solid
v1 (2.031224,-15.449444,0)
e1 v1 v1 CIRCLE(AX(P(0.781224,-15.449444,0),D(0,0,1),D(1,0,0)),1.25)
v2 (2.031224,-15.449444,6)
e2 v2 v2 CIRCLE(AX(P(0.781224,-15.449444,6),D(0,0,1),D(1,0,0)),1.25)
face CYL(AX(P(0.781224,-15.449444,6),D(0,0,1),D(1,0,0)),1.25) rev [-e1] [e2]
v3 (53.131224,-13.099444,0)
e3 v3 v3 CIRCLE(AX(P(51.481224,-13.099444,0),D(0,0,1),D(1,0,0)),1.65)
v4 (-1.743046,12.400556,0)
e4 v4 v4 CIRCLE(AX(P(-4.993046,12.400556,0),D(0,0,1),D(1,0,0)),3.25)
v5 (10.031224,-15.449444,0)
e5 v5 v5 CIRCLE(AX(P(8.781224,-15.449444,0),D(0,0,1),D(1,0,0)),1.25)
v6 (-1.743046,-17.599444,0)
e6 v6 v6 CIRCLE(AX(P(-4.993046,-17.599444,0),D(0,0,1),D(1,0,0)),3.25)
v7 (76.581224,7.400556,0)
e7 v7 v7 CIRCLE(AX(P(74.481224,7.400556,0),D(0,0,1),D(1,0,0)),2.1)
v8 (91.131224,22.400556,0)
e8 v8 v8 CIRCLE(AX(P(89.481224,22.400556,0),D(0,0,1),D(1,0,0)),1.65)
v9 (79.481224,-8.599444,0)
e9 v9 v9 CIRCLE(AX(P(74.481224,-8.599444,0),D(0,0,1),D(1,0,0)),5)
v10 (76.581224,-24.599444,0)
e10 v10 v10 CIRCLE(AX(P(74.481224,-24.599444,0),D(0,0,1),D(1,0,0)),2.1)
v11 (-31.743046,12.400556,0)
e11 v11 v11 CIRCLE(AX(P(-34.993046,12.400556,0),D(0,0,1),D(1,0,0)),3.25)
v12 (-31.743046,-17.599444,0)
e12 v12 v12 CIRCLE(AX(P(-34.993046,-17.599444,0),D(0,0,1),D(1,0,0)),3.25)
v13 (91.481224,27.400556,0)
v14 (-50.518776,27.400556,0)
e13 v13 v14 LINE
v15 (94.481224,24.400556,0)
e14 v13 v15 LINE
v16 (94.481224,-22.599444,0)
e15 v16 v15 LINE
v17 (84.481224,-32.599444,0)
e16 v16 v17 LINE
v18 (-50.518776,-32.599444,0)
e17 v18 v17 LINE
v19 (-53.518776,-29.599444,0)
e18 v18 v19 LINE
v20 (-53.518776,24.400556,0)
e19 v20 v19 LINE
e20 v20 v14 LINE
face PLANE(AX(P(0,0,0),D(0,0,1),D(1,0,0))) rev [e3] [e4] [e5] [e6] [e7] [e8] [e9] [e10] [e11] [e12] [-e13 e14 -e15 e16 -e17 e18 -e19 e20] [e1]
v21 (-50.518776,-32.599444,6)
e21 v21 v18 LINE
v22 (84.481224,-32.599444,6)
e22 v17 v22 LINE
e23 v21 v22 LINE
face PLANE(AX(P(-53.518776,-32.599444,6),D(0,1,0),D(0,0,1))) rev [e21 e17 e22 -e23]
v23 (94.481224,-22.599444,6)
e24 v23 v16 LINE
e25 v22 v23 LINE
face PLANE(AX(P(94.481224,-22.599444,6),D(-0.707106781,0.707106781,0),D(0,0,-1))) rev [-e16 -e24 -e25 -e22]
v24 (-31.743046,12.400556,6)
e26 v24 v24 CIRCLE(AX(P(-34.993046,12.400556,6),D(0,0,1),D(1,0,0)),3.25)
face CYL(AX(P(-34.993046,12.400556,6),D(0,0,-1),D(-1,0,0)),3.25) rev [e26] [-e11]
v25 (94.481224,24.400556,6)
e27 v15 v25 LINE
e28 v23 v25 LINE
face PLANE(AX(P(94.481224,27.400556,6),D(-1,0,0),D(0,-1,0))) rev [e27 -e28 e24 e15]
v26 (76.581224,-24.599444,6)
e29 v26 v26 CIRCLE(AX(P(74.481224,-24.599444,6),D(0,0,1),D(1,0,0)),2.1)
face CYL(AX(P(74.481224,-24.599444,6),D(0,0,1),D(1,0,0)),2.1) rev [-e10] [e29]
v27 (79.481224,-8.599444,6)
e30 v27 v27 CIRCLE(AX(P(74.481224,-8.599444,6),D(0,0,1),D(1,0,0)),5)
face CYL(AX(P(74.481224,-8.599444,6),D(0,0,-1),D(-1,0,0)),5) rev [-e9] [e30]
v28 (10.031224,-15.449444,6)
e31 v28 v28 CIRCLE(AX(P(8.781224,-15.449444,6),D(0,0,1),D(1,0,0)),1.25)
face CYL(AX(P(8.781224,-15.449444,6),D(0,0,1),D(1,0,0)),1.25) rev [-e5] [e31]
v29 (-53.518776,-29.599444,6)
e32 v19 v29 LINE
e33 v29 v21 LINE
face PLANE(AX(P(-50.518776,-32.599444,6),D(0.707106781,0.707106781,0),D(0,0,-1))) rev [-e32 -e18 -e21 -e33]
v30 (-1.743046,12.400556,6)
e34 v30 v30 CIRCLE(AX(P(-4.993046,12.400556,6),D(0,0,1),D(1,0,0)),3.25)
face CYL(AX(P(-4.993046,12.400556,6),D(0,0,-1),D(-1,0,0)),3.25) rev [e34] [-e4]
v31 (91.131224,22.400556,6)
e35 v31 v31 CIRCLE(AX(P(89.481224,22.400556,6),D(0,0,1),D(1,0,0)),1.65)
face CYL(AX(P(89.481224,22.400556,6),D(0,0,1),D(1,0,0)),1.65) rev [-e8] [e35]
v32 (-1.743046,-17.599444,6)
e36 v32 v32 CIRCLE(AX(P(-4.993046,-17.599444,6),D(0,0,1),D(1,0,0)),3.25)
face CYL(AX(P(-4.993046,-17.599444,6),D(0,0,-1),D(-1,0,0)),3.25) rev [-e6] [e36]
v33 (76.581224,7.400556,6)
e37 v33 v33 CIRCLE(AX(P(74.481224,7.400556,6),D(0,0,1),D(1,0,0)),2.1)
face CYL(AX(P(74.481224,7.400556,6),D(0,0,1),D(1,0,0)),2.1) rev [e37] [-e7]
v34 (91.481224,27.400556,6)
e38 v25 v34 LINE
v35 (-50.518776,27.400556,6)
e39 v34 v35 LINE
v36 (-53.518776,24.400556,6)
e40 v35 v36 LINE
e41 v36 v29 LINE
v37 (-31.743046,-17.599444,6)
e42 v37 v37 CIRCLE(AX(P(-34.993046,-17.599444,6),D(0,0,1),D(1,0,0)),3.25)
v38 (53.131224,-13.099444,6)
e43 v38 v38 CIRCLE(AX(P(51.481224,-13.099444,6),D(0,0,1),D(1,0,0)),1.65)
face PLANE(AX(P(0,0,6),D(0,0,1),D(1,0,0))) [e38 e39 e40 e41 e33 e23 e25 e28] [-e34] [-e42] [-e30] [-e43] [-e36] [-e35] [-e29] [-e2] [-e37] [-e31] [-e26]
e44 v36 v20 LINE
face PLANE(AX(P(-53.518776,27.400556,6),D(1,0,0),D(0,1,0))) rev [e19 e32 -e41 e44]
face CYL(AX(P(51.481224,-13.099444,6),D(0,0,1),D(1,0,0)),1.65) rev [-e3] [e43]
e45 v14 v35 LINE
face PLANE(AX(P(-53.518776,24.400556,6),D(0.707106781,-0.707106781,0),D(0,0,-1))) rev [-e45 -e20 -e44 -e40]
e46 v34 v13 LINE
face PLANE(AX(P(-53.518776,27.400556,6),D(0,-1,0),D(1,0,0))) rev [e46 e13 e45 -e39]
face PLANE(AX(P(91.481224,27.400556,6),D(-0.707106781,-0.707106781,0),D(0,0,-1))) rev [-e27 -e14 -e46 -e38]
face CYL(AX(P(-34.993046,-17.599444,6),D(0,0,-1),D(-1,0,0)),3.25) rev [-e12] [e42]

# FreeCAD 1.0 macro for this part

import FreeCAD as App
import Part
import Sketcher
Q = App.Units.Quantity


def edges_at(feature, points):
    """Names of the edges that pass closest to the given points."""
    edges = feature.Shape.Edges
    near = lambda p: min(range(len(edges)), key=lambda i: edges[i].distToShape(Part.Vertex(*p))[0])
    return sorted({f"Edge{near(p) + 1}" for p in points})


def add_polygon(sketch, points):
    """Adds a closed chain of lines whose ends are joined by coincident constraints."""
    first, n = sketch.GeometryCount, len(points)
    for a, b in zip(points, points[1:] + points[:1]):
        sketch.addGeometry(Part.LineSegment(App.Vector(*a, 0), App.Vector(*b, 0)), False)
    for i in range(n):
        sketch.addConstraint(Sketcher.Constraint("Coincident", first + i, 2, first + (i + 1) % n, 1))

doc = App.newDocument("Part")
body = doc.addObject("PartDesign::Body", "Body")

sketch1 = body.newObject("Sketcher::SketchObject", "Sketch")
sketch1.AttachmentSupport = (doc.getObject("XY_Plane"), [""])
sketch1.MapMode = "FlatFace"
add_polygon(sketch1, [(-53.518776, 27.400556), (-53.518776, -32.599444), (94.481224, -32.599444), (94.481224, 27.400556)])
sketch1.addGeometry(Part.Circle(App.Vector(-34.993046, -17.599444, 0), App.Vector(0, 0, 1), 3.25), False)
sketch1.addGeometry(Part.Circle(App.Vector(-4.993046, -17.599444, 0), App.Vector(0, 0, 1), 3.25), False)
sketch1.addGeometry(Part.Circle(App.Vector(74.481224, -8.599444, 0), App.Vector(0, 0, 1), 5), False)
sketch1.addGeometry(Part.Circle(App.Vector(-34.993046, 12.400556, 0), App.Vector(0, 0, 1), 3.25), False)
sketch1.addGeometry(Part.Circle(App.Vector(-4.993046, 12.400556, 0), App.Vector(0, 0, 1), 3.25), False)
sketch1.addConstraint([
    Sketcher.Constraint("Vertical", 0),
    Sketcher.Constraint("Horizontal", 1),
    Sketcher.Constraint("Vertical", 2),
    Sketcher.Constraint("Horizontal", 3),
    Sketcher.Constraint("Equal", 4, 5),
    Sketcher.Constraint("Equal", 5, 7),
    Sketcher.Constraint("Equal", 7, 8),
    Sketcher.Constraint("Horizontal", 4, 3, 5, 3),
    Sketcher.Constraint("Horizontal", 7, 3, 8, 3),
    Sketcher.Constraint("Vertical", 4, 3, 7, 3),
    Sketcher.Constraint("Vertical", 5, 3, 8, 3),
    Sketcher.Constraint("Diameter", 6, Q("10 mm")),
    Sketcher.Constraint("Diameter", 4, Q("6.5 mm")),
    Sketcher.Constraint("DistanceX", 1, 1, 1, 2, Q("148 mm")),
    Sketcher.Constraint("DistanceY", 0, 2, 0, 1, Q("60 mm")),
    Sketcher.Constraint("DistanceX", 4, 3, 5, 3, Q("30 mm")),
    Sketcher.Constraint("DistanceY", 5, 3, 6, 3, Q("9 mm")),
    Sketcher.Constraint("DistanceY", 4, 3, 7, 3, Q("30 mm")),
    Sketcher.Constraint("DistanceY", 0, 2, 4, 3, Q("15 mm")),
    Sketcher.Constraint("DistanceX", 0, 2, 6, 3, Q("128 mm")),
    Sketcher.Constraint("DistanceX", 5, 3, 6, 3, Q("79.47427 mm")),
    Sketcher.Constraint("DistanceX", 4, 3, -1, 1, Q("34.993046 mm")),
    Sketcher.Constraint("DistanceY", 4, 3, -1, 1, Q("17.599444 mm")),
])
pad1 = body.newObject("PartDesign::Pad", "Pad")
pad1.Profile = sketch1
pad1.Length = 6

sketch2 = body.newObject("Sketcher::SketchObject", "Sketch001")
sketch2.AttachmentSupport = (doc.getObject("XY_Plane"), [""])
sketch2.MapMode = "FlatFace"
sketch2.AttachmentOffset = App.Placement(App.Vector(0, 0, 6), App.Rotation())
sketch2.addGeometry([
    Part.Circle(App.Vector(74.481224, 7.400556, 0), App.Vector(0, 0, 1), 2.1),
    Part.Circle(App.Vector(74.481224, -24.599444, 0), App.Vector(0, 0, 1), 2.1),
], False)
sketch2.addConstraint([
    Sketcher.Constraint("Equal", 0, 1),
    Sketcher.Constraint("Vertical", 0, 3, 1, 3),
    Sketcher.Constraint("Diameter", 0, Q("4.2 mm")),
    Sketcher.Constraint("DistanceY", 1, 3, 0, 3, Q("32 mm")),
    Sketcher.Constraint("DistanceX", -1, 1, 0, 3, Q("74.481224 mm")),
    Sketcher.Constraint("DistanceY", -1, 1, 0, 3, Q("7.400556 mm")),
])
doc.recompute()
hole = body.newObject("PartDesign::Hole", "Hole")
hole.Profile = sketch2
hole.ThreadType = "None"
hole.Diameter = 4.2
hole.DepthType = "ThroughAll"

sketch3 = body.newObject("Sketcher::SketchObject", "Sketch002")
sketch3.AttachmentSupport = (doc.getObject("XY_Plane"), [""])
sketch3.MapMode = "FlatFace"
sketch3.AttachmentOffset = App.Placement(App.Vector(0, 0, 6), App.Rotation())
sketch3.addGeometry([
    Part.Circle(App.Vector(89.481224, 22.400556, 0), App.Vector(0, 0, 1), 1.65),
    Part.Circle(App.Vector(51.481224, -13.099444, 0), App.Vector(0, 0, 1), 1.65),
], False)
sketch3.addConstraint([
    Sketcher.Constraint("Equal", 0, 1),
    Sketcher.Constraint("Diameter", 0, Q("3.3 mm")),
    Sketcher.Constraint("DistanceX", 1, 3, 0, 3, Q("38 mm")),
    Sketcher.Constraint("DistanceY", 1, 3, 0, 3, Q("35.5 mm")),
    Sketcher.Constraint("DistanceX", -1, 1, 0, 3, Q("89.481224 mm")),
    Sketcher.Constraint("DistanceY", -1, 1, 0, 3, Q("22.400556 mm")),
])
doc.recompute()
hole2 = body.newObject("PartDesign::Hole", "Hole001")
hole2.Profile = sketch3
hole2.ThreadType = "None"
hole2.Diameter = 3.3
hole2.DepthType = "ThroughAll"

sketch4 = body.newObject("Sketcher::SketchObject", "Sketch003")
sketch4.AttachmentSupport = (doc.getObject("XY_Plane"), [""])
sketch4.MapMode = "FlatFace"
sketch4.AttachmentOffset = App.Placement(App.Vector(0, 0, 6), App.Rotation())
sketch4.addGeometry([
    Part.Circle(App.Vector(0.781224, -15.449444, 0), App.Vector(0, 0, 1), 1.25),
    Part.Circle(App.Vector(8.781224, -15.449444, 0), App.Vector(0, 0, 1), 1.25),
], False)
sketch4.addConstraint([
    Sketcher.Constraint("Equal", 0, 1),
    Sketcher.Constraint("Horizontal", 0, 3, 1, 3),
    Sketcher.Constraint("Diameter", 0, Q("2.5 mm")),
    Sketcher.Constraint("DistanceX", 0, 3, 1, 3, Q("8 mm")),
    Sketcher.Constraint("DistanceX", -1, 1, 0, 3, Q("0.781224 mm")),
    Sketcher.Constraint("DistanceY", 0, 3, -1, 1, Q("15.449444 mm")),
])
doc.recompute()
hole3 = body.newObject("PartDesign::Hole", "Hole002")
hole3.Profile = sketch4
hole3.ThreadType = "None"
hole3.Diameter = 2.5
hole3.DepthType = "ThroughAll"
doc.recompute()

chamfer = body.newObject("PartDesign::Chamfer", "Chamfer")
chamfer.Base = (hole3, edges_at(hole3, [(94.481, -32.599, 3)]))
chamfer.Size = 10
doc.recompute()

chamfer2 = body.newObject("PartDesign::Chamfer", "Chamfer001")
chamfer2.Base = (chamfer, edges_at(chamfer, [(-53.519, 27.401, 3), (94.481, 27.401, 3), (-53.519, -32.599, 3)]))
chamfer2.Size = 3

doc.recompute()
